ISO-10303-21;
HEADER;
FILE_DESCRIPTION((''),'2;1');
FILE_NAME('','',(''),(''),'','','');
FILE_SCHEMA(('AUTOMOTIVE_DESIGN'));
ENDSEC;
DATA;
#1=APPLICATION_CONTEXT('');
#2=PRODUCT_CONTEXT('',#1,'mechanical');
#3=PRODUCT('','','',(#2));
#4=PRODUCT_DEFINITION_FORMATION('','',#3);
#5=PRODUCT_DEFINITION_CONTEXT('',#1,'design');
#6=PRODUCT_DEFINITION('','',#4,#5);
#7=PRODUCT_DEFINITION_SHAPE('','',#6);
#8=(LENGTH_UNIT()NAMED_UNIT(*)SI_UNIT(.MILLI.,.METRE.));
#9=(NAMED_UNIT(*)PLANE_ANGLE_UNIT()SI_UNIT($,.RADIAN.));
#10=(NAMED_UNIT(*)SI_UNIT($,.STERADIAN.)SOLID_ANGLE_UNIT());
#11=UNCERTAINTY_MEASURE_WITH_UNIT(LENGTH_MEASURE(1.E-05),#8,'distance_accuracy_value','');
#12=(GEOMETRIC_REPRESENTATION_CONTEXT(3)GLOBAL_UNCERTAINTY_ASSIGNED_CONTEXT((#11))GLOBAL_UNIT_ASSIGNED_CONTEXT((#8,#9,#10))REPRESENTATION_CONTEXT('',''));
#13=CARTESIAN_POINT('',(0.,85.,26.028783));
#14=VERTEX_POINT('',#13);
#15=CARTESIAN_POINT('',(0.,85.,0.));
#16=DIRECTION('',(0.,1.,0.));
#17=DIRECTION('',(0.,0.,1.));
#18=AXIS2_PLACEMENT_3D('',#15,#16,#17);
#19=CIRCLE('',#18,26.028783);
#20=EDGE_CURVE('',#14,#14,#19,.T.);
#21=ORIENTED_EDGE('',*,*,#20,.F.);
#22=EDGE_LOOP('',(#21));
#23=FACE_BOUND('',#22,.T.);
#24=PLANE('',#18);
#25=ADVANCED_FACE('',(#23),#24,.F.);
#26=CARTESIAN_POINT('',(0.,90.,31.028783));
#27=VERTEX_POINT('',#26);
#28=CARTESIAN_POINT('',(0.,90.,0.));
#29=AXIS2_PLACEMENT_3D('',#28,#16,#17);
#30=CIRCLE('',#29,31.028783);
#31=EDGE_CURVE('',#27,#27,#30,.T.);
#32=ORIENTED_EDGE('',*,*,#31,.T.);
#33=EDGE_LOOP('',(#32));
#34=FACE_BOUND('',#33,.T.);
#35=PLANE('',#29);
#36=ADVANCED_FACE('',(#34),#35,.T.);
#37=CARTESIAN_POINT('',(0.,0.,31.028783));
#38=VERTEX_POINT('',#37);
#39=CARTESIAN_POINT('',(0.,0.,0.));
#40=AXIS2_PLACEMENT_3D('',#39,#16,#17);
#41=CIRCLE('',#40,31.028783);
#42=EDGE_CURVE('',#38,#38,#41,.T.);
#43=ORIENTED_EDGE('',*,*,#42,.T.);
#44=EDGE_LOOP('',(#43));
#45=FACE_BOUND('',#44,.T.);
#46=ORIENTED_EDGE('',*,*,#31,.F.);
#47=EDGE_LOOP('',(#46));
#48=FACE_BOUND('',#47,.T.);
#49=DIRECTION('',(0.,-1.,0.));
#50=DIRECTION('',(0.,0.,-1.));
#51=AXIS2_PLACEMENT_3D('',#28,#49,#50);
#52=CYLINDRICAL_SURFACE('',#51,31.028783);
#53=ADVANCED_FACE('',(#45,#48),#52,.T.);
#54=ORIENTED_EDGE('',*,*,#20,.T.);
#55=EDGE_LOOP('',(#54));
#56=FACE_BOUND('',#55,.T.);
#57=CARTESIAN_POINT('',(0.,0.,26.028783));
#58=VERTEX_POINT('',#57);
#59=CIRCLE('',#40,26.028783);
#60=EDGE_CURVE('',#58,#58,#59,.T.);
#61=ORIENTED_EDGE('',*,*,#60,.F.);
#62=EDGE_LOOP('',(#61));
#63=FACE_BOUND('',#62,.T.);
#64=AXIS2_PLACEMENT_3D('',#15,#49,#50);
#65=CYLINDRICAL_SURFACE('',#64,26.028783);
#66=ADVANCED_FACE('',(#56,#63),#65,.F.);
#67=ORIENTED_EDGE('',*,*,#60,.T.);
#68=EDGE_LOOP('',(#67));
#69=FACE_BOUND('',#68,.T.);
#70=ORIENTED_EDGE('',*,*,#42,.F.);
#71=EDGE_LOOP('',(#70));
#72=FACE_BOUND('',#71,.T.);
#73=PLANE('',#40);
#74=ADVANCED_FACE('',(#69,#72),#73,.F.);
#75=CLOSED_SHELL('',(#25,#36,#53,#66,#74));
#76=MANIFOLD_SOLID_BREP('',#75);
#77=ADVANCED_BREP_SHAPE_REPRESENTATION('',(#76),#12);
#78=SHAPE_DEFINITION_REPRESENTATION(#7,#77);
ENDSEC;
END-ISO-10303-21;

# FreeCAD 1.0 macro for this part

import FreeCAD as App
import Part
import Sketcher

V = App.Vector

doc = App.newDocument("Part")
params = doc.addObject("Spreadsheet::Sheet", "Params")
for row, (alias, value) in enumerate([
    ("pad1_length", "90 mm"),
    ("pocket1_length", "85 mm"),
], start=1):
    params.set(f"A{row}", alias)
    params.set(f"B{row}", "=" + value)
    params.setAlias(f"B{row}", alias)

body = doc.addObject("PartDesign::Body", "Body")

# Sketch on XZ plane
sketch1 = doc.addObject("Sketcher::SketchObject", "Sketch")
body.addObject(sketch1)
sketch1.AttachmentSupport = (doc.XZ_Plane, [""])
sketch1.MapMode = "FlatFace"
sketch1.addGeometry(Part.Circle(V(0, 0, 0), V(0, 0, 1), 31), False)
sketch1.addConstraint(Sketcher.Constraint("Coincident", 0, 3, -1, 1))
sketch1.addConstraint(Sketcher.Constraint("Diameter", 0, 62.057567))
pad1 = doc.addObject("PartDesign::Pad", "Pad")
body.addObject(pad1)
pad1.Profile = sketch1
pad1.setExpression("Length", "Params.pad1_length")
pad1.Reversed = True

# Sketch on XZ plane
sketch2 = doc.addObject("Sketcher::SketchObject", "Sketch001")
body.addObject(sketch2)
sketch2.AttachmentSupport = (doc.XZ_Plane, [""])
sketch2.MapMode = "FlatFace"
sketch2.addGeometry(Part.Circle(V(0, 0, 0), V(0, 0, 1), 26), False)
sketch2.addConstraint(Sketcher.Constraint("Coincident", 0, 3, -1, 1))
sketch2.addConstraint(Sketcher.Constraint("Diameter", 0, 52.057567))
pocket1 = doc.addObject("PartDesign::Pocket", "Pocket")
body.addObject(pocket1)
pocket1.Profile = sketch2
pocket1.setExpression("Length", "Params.pocket1_length")

doc.recompute()
